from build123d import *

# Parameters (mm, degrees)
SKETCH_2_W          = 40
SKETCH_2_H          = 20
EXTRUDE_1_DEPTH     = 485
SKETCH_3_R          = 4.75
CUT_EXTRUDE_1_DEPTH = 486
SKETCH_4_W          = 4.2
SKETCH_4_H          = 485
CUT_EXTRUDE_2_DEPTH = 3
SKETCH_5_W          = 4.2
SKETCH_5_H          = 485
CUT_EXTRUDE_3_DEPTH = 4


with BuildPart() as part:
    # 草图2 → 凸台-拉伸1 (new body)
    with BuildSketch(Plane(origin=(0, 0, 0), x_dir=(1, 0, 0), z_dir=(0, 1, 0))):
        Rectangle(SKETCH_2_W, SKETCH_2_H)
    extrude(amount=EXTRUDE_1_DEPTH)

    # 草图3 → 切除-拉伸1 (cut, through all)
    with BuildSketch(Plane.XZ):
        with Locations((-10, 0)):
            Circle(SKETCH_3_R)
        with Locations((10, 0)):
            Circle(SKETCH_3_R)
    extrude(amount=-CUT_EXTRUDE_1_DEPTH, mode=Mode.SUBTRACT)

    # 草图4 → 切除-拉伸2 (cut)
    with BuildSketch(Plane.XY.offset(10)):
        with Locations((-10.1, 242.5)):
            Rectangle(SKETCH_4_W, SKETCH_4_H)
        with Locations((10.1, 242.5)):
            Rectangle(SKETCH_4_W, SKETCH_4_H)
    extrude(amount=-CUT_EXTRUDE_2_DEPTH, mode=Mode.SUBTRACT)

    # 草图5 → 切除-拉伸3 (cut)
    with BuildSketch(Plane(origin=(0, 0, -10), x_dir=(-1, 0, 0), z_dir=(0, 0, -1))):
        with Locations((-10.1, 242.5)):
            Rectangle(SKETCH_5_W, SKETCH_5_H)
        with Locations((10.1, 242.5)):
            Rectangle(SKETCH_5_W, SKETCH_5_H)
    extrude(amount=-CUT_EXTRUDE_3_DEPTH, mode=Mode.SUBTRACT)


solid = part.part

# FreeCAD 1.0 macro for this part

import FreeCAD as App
import Part
import Sketcher

V = App.Vector
Q = App.Units.Quantity


def add_polygon(sketch, points):
    """Adds a closed chain of lines whose ends are joined by coincident constraints."""
    first, n = sketch.GeometryCount, len(points)
    for a, b in zip(points, points[1:] + points[:1]):
        sketch.addGeometry(Part.LineSegment(App.Vector(*a, 0), App.Vector(*b, 0)), False)
    for i in range(n):
        sketch.addConstraint(Sketcher.Constraint("Coincident", first + i, 2, first + (i + 1) % n, 1))

doc = App.newDocument("Part")
body = doc.addObject("PartDesign::Body", "Body")

sketch1 = body.newObject("Sketcher::SketchObject", "Sketch")
sketch1.AttachmentSupport = (doc.getObject("XZ_Plane"), [""])
sketch1.MapMode = "FlatFace"
add_polygon(sketch1, [(-20, -10), (-20, 10), (20, 10), (20, -10)])
sketch1.addConstraint(Sketcher.Constraint("Vertical", 0))
sketch1.addConstraint(Sketcher.Constraint("Horizontal", 1))
sketch1.addConstraint(Sketcher.Constraint("Vertical", 2))
sketch1.addConstraint(Sketcher.Constraint("Horizontal", 3))
sketch1.addConstraint(Sketcher.Constraint("Symmetric", 0, 2, 2, 2, -1, 1))
sketch1.addConstraint(Sketcher.Constraint("DistanceX", 1, 1, 1, 2, Q("40 mm")))
sketch1.addConstraint(Sketcher.Constraint("DistanceY", 0, 1, 0, 2, Q("20 mm")))
pad1 = body.newObject("PartDesign::Pad", "Pad")
pad1.Profile = sketch1
pad1.Length = 485
pad1.Reversed = True

sketch2 = body.newObject("Sketcher::SketchObject", "Sketch001")
sketch2.AttachmentSupport = (doc.getObject("XZ_Plane"), [""])
sketch2.MapMode = "FlatFace"
sketch2.addGeometry(Part.Circle(V(-10, 0, 0), V(0, 0, 1), 4.75), False)
sketch2.addGeometry(Part.Circle(V(10, 0, 0), V(0, 0, 1), 4.75), False)
sketch2.addConstraint(Sketcher.Constraint("Equal", 0, 1))
sketch2.addConstraint(Sketcher.Constraint("Symmetric", 0, 3, 1, 3, -1, 1))
sketch2.addConstraint(Sketcher.Constraint("PointOnObject", 0, 3, -1))
sketch2.addConstraint(Sketcher.Constraint("Diameter", 0, Q("9.5 mm")))
sketch2.addConstraint(Sketcher.Constraint("DistanceX", 0, 3, -1, 1, Q("10 mm")))
pocket1 = body.newObject("PartDesign::Pocket", "Pocket")
pocket1.Profile = sketch2
pocket1.Type = "ThroughAll"

sketch3 = body.newObject("Sketcher::SketchObject", "Sketch002")
sketch3.AttachmentSupport = (doc.getObject("XY_Plane"), [""])
sketch3.MapMode = "FlatFace"
sketch3.AttachmentOffset = App.Placement(V(0, 0, 10), App.Rotation())
add_polygon(sketch3, [(-12.2, 485), (-12.2, 0), (-8, 0), (-8, 485)])
add_polygon(sketch3, [(8, 485), (8, 0), (12.2, 0), (12.2, 485)])
sketch3.addConstraint(Sketcher.Constraint("Vertical", 0))
sketch3.addConstraint(Sketcher.Constraint("Horizontal", 1))
sketch3.addConstraint(Sketcher.Constraint("Vertical", 2))
sketch3.addConstraint(Sketcher.Constraint("Horizontal", 3))
sketch3.addConstraint(Sketcher.Constraint("Vertical", 4))
sketch3.addConstraint(Sketcher.Constraint("Horizontal", 5))
sketch3.addConstraint(Sketcher.Constraint("Vertical", 6))
sketch3.addConstraint(Sketcher.Constraint("Horizontal", 7))
sketch3.addConstraint(Sketcher.Constraint("Symmetric", 1, 2, 4, 2, -1, 1))
sketch3.addConstraint(Sketcher.Constraint("Symmetric", 0, 2, 5, 2, -2))
sketch3.addConstraint(Sketcher.Constraint("Horizontal", 3, 2, 6, 2))
sketch3.addConstraint(Sketcher.Constraint("DistanceY", 0, 2, 0, 1, Q("485 mm")))
sketch3.addConstraint(Sketcher.Constraint("DistanceX", 1, 1, 1, 2, Q("4.2 mm")))
sketch3.addConstraint(Sketcher.Constraint("DistanceX", 1, 2, -1, 1, Q("8 mm")))
pocket2 = body.newObject("PartDesign::Pocket", "Pocket001")
pocket2.Profile = sketch3
pocket2.Length = 3

sketch4 = body.newObject("Sketcher::SketchObject", "Sketch003")
sketch4.AttachmentSupport = (doc.getObject("XY_Plane"), [""])
sketch4.MapMode = "FlatFace"
sketch4.AttachmentOffset = App.Placement(V(0, 0, -10), App.Rotation())
add_polygon(sketch4, [(12.2, 485), (12.2, 0), (8, 0), (8, 485)])
add_polygon(sketch4, [(-8, 485), (-8, 0), (-12.2, 0), (-12.2, 485)])
sketch4.addConstraint(Sketcher.Constraint("Vertical", 0))
sketch4.addConstraint(Sketcher.Constraint("Horizontal", 1))
sketch4.addConstraint(Sketcher.Constraint("Vertical", 2))
sketch4.addConstraint(Sketcher.Constraint("Horizontal", 3))
sketch4.addConstraint(Sketcher.Constraint("Vertical", 4))
sketch4.addConstraint(Sketcher.Constraint("Horizontal", 5))
sketch4.addConstraint(Sketcher.Constraint("Vertical", 6))
sketch4.addConstraint(Sketcher.Constraint("Horizontal", 7))
sketch4.addConstraint(Sketcher.Constraint("Symmetric", 1, 2, 4, 2, -1, 1))
sketch4.addConstraint(Sketcher.Constraint("Symmetric", 0, 2, 5, 2, -2))
sketch4.addConstraint(Sketcher.Constraint("Horizontal", 3, 2, 6, 2))
sketch4.addConstraint(Sketcher.Constraint("DistanceY", 0, 2, 0, 1, Q("485 mm")))
sketch4.addConstraint(Sketcher.Constraint("DistanceX", 1, 2, 1, 1, Q("4.2 mm")))
sketch4.addConstraint(Sketcher.Constraint("DistanceX", -1, 1, 1, 2, Q("8 mm")))
pocket3 = body.newObject("PartDesign::Pocket", "Pocket002")
pocket3.Profile = sketch4
pocket3.Length = 4
pocket3.Reversed = True

doc.recompute()
